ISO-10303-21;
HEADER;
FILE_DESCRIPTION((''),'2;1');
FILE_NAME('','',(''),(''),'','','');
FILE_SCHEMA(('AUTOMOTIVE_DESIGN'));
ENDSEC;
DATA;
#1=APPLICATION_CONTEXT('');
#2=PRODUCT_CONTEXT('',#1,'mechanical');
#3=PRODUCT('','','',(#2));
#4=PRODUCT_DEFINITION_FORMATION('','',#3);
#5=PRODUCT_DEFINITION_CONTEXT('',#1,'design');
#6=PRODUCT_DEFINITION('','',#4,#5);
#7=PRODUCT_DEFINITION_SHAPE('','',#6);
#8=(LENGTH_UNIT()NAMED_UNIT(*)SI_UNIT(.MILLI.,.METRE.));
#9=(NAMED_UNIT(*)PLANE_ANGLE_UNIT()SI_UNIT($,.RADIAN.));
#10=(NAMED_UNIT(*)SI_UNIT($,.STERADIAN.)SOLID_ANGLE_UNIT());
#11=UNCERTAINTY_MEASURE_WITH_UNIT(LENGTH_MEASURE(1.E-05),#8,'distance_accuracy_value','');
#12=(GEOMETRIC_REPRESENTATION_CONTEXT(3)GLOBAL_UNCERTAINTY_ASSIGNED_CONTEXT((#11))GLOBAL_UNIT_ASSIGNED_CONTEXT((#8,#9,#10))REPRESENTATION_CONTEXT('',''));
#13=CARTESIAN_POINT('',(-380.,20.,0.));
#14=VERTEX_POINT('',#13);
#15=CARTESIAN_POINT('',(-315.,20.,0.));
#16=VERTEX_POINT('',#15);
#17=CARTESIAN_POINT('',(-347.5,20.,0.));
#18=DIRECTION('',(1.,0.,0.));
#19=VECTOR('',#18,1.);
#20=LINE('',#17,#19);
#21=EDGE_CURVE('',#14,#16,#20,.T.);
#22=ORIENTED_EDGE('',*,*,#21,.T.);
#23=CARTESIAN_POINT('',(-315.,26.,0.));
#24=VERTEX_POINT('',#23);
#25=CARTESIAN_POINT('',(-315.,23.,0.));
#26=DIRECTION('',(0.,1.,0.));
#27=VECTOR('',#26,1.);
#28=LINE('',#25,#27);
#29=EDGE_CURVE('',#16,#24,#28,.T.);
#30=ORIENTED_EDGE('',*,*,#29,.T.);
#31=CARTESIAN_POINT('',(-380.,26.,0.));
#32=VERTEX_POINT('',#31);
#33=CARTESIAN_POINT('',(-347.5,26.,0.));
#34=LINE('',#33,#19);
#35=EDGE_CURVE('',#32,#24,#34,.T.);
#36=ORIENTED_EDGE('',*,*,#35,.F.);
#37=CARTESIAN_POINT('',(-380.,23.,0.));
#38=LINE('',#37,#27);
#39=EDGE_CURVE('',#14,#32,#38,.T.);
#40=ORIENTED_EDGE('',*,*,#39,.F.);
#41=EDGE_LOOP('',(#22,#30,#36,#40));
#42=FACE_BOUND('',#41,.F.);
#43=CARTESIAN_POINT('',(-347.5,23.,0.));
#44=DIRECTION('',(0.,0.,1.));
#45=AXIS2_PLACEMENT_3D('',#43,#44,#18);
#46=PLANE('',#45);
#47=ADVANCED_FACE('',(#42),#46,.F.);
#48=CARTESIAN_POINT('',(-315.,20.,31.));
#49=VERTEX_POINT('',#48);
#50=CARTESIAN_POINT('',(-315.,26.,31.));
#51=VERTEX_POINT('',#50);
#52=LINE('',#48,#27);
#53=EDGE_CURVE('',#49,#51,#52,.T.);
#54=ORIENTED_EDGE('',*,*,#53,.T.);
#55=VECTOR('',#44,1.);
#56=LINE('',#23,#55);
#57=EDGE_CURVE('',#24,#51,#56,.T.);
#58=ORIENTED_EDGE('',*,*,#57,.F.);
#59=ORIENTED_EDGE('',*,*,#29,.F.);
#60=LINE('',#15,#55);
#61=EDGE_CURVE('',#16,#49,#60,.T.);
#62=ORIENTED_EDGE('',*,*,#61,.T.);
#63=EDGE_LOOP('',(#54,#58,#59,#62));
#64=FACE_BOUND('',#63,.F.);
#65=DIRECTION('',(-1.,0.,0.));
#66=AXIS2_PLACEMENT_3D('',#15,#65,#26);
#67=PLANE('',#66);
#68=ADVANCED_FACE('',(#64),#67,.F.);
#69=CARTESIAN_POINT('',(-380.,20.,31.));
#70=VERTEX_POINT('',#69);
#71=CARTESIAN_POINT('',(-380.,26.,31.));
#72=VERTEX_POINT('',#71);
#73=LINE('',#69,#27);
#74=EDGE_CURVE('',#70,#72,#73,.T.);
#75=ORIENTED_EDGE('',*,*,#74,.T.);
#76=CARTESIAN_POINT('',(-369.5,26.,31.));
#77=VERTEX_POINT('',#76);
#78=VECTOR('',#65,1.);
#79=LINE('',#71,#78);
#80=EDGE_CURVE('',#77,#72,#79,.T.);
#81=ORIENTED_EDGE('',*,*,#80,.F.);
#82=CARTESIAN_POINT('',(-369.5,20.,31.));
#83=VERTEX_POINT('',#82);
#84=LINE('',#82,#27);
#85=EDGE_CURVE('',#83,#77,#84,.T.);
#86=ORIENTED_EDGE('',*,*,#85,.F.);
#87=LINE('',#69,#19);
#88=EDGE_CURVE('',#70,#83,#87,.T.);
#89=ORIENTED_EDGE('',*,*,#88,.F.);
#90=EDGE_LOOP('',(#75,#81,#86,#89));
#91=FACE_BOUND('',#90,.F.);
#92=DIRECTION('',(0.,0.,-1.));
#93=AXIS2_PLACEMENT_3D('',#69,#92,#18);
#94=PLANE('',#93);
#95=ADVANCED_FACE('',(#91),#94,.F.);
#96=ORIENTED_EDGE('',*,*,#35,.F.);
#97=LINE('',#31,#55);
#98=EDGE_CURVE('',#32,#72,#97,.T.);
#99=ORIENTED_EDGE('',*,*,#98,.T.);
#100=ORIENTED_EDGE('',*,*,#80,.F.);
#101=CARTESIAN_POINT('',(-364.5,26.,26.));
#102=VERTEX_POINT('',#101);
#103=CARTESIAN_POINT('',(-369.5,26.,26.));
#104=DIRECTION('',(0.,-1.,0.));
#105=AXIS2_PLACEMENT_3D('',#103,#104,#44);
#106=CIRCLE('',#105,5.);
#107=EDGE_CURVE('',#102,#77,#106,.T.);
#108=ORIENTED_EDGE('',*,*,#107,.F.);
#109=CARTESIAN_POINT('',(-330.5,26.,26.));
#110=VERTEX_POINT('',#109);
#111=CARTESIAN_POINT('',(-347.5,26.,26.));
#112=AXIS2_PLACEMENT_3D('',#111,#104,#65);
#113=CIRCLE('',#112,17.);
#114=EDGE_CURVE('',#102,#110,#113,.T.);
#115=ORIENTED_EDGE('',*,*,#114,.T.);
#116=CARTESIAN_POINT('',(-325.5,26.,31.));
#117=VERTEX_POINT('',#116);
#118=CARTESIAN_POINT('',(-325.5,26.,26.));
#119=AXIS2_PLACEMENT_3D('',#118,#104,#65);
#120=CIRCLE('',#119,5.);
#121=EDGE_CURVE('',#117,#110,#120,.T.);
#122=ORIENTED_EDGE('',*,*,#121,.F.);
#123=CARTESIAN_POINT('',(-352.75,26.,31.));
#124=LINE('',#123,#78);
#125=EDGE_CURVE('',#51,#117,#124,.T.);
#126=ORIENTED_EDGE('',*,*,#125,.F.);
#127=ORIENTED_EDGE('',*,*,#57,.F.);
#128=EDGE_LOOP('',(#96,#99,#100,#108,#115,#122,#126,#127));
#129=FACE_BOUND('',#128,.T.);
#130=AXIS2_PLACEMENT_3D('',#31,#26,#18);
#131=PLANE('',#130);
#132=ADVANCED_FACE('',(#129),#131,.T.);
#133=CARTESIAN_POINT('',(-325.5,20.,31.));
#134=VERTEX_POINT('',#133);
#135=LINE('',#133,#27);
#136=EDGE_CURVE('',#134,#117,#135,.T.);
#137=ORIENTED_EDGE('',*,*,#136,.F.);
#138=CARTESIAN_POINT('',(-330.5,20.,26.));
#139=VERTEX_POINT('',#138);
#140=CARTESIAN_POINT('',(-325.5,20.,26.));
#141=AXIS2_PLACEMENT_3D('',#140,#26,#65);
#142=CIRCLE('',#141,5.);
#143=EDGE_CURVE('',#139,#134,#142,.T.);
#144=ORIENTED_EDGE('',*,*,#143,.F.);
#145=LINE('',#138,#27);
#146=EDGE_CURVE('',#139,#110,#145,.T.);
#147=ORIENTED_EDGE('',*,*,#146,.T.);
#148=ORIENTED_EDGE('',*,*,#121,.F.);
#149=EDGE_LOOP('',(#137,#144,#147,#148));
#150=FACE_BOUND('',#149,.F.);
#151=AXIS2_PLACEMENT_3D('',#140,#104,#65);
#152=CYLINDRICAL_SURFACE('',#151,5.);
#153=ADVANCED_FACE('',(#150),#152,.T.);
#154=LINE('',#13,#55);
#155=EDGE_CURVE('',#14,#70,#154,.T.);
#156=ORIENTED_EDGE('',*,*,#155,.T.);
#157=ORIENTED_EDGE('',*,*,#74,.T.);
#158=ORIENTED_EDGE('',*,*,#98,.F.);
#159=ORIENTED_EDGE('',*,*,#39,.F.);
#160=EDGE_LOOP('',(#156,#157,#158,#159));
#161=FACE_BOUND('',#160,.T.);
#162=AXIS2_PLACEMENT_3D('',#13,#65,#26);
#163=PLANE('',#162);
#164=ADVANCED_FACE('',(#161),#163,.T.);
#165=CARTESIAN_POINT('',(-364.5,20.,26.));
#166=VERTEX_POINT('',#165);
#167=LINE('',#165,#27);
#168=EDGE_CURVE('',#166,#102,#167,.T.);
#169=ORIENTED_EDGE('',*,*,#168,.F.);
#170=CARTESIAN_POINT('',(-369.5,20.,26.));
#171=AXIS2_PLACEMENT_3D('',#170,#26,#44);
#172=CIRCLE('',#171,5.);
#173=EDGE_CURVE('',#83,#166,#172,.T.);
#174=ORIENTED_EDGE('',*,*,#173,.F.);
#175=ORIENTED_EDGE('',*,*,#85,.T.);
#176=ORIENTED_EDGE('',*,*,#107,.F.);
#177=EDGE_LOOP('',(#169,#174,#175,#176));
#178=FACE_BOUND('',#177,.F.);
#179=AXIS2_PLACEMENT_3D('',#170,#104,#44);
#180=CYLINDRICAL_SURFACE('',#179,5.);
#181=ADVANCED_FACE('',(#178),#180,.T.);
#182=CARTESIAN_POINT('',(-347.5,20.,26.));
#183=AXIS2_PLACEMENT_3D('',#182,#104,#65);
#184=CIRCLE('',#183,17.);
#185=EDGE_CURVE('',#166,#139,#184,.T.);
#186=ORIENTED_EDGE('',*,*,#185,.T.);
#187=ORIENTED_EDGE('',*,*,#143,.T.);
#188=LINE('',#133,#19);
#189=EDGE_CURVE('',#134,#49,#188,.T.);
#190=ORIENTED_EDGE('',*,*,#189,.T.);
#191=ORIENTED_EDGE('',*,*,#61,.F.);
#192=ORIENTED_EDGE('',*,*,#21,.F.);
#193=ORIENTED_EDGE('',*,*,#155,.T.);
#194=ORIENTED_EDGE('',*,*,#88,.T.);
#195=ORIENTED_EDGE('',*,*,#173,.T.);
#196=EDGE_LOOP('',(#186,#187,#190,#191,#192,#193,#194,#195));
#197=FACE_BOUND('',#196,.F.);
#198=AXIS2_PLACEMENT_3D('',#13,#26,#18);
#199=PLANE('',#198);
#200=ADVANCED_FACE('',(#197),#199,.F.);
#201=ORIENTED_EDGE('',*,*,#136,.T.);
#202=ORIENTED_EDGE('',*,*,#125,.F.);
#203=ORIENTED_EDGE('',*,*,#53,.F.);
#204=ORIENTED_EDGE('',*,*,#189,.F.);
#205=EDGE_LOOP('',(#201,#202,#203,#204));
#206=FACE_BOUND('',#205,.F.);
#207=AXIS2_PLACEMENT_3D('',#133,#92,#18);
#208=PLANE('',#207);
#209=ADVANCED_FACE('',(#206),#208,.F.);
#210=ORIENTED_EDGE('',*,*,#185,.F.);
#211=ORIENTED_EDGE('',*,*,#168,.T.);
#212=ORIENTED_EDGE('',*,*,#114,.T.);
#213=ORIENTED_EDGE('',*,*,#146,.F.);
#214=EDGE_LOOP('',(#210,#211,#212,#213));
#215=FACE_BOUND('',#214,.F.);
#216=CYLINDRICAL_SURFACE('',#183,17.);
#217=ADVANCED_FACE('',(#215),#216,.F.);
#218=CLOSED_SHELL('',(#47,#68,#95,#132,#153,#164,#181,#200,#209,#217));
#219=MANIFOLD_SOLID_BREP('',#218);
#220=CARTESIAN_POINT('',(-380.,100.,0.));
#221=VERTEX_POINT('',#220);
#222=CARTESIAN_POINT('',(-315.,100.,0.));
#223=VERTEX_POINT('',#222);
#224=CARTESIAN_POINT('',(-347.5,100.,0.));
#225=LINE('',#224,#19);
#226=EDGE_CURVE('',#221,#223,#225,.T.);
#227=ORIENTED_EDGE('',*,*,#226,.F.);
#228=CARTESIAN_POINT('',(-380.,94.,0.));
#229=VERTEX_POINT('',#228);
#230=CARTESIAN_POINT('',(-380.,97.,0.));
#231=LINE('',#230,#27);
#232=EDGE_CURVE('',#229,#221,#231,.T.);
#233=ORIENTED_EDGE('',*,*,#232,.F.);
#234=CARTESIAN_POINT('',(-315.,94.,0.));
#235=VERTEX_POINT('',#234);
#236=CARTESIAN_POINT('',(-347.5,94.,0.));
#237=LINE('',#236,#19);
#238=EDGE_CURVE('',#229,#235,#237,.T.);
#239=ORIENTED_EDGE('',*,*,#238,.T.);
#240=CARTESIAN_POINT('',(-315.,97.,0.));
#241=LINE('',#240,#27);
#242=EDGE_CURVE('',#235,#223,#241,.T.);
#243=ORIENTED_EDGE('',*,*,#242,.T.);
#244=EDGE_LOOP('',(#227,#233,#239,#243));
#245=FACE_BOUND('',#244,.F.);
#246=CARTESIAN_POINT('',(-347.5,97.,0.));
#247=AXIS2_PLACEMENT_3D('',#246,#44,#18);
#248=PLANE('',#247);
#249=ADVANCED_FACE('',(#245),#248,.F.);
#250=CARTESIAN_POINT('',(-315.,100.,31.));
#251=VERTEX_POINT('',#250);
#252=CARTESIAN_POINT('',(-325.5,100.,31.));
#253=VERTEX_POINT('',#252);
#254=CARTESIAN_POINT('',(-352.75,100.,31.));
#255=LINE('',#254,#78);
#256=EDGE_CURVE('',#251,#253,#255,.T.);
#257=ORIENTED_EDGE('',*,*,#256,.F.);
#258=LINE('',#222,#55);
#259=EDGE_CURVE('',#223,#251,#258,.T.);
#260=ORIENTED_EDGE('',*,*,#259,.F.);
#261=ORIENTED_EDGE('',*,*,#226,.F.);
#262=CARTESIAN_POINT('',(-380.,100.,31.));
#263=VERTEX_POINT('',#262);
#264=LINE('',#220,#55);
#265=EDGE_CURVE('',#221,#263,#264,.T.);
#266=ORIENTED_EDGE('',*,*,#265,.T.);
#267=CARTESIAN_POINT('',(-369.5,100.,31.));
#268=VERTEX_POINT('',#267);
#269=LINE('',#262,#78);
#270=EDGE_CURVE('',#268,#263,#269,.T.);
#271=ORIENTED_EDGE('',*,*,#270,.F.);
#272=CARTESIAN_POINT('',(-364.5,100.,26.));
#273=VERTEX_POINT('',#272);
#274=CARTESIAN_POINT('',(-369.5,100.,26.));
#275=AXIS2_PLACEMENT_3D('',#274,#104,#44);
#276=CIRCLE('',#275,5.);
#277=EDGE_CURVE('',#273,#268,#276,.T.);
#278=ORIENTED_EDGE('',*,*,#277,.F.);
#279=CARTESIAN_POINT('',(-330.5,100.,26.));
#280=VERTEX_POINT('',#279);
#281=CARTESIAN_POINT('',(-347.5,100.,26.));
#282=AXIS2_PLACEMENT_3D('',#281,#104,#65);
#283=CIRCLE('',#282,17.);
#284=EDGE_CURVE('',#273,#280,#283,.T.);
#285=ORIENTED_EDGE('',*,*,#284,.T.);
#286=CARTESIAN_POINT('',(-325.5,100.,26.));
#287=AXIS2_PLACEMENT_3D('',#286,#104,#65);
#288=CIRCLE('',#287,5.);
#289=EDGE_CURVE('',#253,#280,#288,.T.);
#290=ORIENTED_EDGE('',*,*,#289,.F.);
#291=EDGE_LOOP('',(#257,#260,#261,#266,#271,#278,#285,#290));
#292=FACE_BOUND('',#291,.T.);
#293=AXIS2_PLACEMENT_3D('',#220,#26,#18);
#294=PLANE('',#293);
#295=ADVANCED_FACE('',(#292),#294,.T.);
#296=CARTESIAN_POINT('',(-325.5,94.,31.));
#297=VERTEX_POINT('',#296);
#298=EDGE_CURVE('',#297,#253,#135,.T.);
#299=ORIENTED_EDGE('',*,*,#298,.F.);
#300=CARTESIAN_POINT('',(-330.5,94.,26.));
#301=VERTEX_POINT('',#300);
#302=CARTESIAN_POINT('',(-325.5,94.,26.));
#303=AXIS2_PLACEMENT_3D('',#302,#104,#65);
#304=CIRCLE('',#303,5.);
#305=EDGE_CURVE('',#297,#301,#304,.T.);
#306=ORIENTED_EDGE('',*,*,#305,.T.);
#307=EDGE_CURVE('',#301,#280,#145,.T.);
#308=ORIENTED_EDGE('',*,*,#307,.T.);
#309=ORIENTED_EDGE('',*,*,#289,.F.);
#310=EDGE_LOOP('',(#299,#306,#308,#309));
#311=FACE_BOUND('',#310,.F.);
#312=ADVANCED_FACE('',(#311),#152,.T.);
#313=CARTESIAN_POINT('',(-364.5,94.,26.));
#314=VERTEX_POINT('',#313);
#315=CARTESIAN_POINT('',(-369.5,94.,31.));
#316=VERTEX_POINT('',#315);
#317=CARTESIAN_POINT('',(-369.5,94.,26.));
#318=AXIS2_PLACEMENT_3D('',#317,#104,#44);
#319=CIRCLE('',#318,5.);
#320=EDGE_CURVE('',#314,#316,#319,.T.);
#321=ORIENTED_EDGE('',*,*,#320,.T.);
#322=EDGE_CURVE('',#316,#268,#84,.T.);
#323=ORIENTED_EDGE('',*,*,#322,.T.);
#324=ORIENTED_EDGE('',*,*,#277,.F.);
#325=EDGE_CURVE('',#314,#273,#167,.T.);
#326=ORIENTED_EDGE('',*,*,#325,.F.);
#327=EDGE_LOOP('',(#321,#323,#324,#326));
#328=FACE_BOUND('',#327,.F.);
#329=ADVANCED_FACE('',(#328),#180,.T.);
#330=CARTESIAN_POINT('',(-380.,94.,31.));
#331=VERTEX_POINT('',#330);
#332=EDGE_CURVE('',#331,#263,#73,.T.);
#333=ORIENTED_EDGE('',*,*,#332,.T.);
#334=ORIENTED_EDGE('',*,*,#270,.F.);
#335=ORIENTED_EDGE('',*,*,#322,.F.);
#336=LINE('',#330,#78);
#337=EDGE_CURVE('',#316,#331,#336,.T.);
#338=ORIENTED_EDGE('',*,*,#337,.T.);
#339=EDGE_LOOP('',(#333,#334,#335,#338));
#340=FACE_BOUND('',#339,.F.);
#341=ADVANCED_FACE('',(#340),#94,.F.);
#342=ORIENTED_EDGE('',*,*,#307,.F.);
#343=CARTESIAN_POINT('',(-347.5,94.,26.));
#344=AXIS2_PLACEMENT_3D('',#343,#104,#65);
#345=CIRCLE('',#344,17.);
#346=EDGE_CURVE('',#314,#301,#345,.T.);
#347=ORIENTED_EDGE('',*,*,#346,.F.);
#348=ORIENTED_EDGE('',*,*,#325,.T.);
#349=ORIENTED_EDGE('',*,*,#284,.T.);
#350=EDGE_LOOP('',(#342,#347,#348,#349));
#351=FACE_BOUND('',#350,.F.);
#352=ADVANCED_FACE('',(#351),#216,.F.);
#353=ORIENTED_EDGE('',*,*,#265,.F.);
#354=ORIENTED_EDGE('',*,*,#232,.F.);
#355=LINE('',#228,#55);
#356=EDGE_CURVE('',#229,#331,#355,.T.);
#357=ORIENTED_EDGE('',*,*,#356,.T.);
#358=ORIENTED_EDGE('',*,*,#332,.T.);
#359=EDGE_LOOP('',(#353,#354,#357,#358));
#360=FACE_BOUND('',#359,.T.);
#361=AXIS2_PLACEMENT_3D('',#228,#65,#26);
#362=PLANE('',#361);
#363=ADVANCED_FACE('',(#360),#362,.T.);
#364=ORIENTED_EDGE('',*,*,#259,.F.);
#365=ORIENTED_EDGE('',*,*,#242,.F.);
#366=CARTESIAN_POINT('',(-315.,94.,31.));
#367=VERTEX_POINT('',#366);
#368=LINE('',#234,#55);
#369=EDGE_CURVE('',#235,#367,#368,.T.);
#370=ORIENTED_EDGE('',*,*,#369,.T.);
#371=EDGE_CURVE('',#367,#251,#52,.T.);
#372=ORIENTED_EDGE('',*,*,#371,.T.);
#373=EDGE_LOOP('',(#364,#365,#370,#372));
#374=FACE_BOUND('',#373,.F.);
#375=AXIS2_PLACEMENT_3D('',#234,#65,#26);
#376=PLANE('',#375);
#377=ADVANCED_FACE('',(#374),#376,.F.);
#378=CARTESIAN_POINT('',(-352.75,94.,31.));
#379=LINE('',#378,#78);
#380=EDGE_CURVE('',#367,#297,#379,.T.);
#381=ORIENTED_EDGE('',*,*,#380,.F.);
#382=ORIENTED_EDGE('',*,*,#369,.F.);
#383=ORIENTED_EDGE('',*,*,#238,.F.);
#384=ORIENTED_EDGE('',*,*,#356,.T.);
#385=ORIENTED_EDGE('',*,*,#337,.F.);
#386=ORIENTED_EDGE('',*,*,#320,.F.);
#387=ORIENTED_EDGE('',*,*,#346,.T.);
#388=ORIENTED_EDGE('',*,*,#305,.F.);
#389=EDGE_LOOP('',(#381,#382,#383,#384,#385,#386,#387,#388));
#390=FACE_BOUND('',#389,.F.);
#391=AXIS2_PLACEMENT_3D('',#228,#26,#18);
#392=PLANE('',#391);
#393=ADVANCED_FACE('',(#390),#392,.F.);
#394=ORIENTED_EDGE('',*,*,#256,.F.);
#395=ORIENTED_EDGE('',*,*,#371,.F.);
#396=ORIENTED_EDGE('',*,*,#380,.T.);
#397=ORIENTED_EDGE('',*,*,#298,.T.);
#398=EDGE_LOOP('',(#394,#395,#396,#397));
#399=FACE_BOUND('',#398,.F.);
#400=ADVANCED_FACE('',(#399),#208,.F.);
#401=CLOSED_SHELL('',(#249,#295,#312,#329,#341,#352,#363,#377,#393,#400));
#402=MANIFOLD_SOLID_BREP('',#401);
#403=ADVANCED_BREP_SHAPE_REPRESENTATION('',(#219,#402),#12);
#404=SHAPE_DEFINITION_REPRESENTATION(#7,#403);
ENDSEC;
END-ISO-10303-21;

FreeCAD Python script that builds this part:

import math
import FreeCAD as App
import Part
import Sketcher
from FreeCAD import Vector


def add_polygon(sketch, points):
    """Adds a closed chain of lines whose ends are joined by coincident constraints."""
    first, n = sketch.GeometryCount, len(points)
    for a, b in zip(points, points[1:] + points[:1]):
        sketch.addGeometry(Part.LineSegment(App.Vector(*a, 0), App.Vector(*b, 0)), False)
    for i in range(n):
        sketch.addConstraint(Sketcher.Constraint("Coincident", first + i, 2, first + (i + 1) % n, 1))

doc = App.newDocument("Part")
body = doc.addObject("PartDesign::Body", "Body")

sketch1 = body.newObject("Sketcher::SketchObject", "Sketch")
sketch1.AttachmentSupport = (doc.getObject("XY_Plane"), [""])
sketch1.MapMode = "FlatFace"
add_polygon(sketch1, [(-380, 26), (-380, 20), (-315, 20), (-315, 26)])
sketch1.addConstraint([
    Sketcher.Constraint("Vertical", 0),
    Sketcher.Constraint("Horizontal", 1),
    Sketcher.Constraint("Vertical", 2),
    Sketcher.Constraint("Horizontal", 3),
    Sketcher.Constraint("DistanceX", 1, 1, 1, 2, 65.0),
    Sketcher.Constraint("DistanceY", 0, 2, 0, 1, 6.0),
    Sketcher.Constraint("DistanceX", 0, 2, -1, 1, 380.0),
    Sketcher.Constraint("DistanceY", -1, 1, 0, 2, 20.0),
])
pad1 = body.newObject("PartDesign::Pad", "Pad")
pad1.Profile = sketch1
pad1.Length = 46
body2 = doc.addObject("PartDesign::Body", "Body001")

sketch2 = body2.newObject("Sketcher::SketchObject", "Sketch001")
sketch2.AttachmentSupport = (doc.getObject("XY_Plane001"), [""])
sketch2.MapMode = "FlatFace"
add_polygon(sketch2, [(-380, 100), (-380, 94), (-315, 94), (-315, 100)])
sketch2.addConstraint([
    Sketcher.Constraint("Vertical", 0),
    Sketcher.Constraint("Horizontal", 1),
    Sketcher.Constraint("Vertical", 2),
    Sketcher.Constraint("Horizontal", 3),
    Sketcher.Constraint("DistanceX", 1, 1, 1, 2, 65.0),
    Sketcher.Constraint("DistanceY", 0, 2, 0, 1, 6.0),
    Sketcher.Constraint("DistanceX", 0, 2, -1, 1, 380.0),
    Sketcher.Constraint("DistanceY", -1, 1, 0, 2, 94.0),
])
pad2 = body2.newObject("PartDesign::Pad", "Pad001")
pad2.Profile = sketch2
pad2.Length = 46
body3 = doc.addObject("PartDesign::Body", "Body002")

sketch3 = body3.newObject("Sketcher::SketchObject", "Sketch002")
sketch3.AttachmentSupport = (doc.getObject("XZ_Plane002"), [""])
sketch3.MapMode = "FlatFace"
sketch3.AttachmentOffset = App.Placement(Vector(0, 0, -20), App.Rotation())
sketch3.addGeometry([
    Part.LineSegment(Vector(-315, 31, 0), Vector(-315, 46, 0)),
    Part.LineSegment(Vector(-315, 46, 0), Vector(-380, 46, 0)),
    Part.LineSegment(Vector(-380, 46, 0), Vector(-380, 31, 0)),
    Part.LineSegment(Vector(-380, 31, 0), Vector(-370, 31, 0)),
    Part.ArcOfCircle(Part.Circle(Vector(-370, 26, 0), Vector(0, 0, 1), 5), math.radians(0), math.radians(90)),
    Part.ArcOfCircle(Part.Circle(Vector(-348, 26, 0), Vector(0, 0, 1), 17), math.radians(180), math.radians(360)),
    Part.ArcOfCircle(Part.Circle(Vector(-326, 26, 0), Vector(0, 0, 1), 5), math.radians(90), math.radians(180)),
    Part.LineSegment(Vector(-326, 31, 0), Vector(-315, 31, 0)),
], False)
sketch3.addConstraint([
    Sketcher.Constraint("Coincident", 0, 2, 1, 1),
    Sketcher.Constraint("Coincident", 1, 2, 2, 1),
    Sketcher.Constraint("Coincident", 2, 2, 3, 1),
    Sketcher.Constraint("Tangent", 3, 2, 4, 2),
    Sketcher.Constraint("Tangent", 4, 1, 5, 1),
    Sketcher.Constraint("Tangent", 5, 2, 6, 2),
    Sketcher.Constraint("Tangent", 6, 1, 7, 1),
    Sketcher.Constraint("Coincident", 7, 2, 0, 1),
    Sketcher.Constraint("Vertical", 0),
    Sketcher.Constraint("Horizontal", 1),
    Sketcher.Constraint("Vertical", 2),
    Sketcher.Constraint("Horizontal", 3),
    Sketcher.Constraint("Horizontal", 7),
    Sketcher.Constraint("Equal", 4, 6),
    Sketcher.Constraint("Horizontal", 4, 3, 5, 3),
    Sketcher.Constraint("Horizontal", 5, 3, 6, 3),
    Sketcher.Constraint("Equal", 3, 7),
    Sketcher.Constraint("Radius", 4, 5.0),
    Sketcher.Constraint("Radius", 5, 17.0),
    Sketcher.Constraint("DistanceX", 1, 2, 1, 1, 65.0),
    Sketcher.Constraint("DistanceY", 0, 1, 0, 2, 15.0),
    Sketcher.Constraint("DistanceY", -1, 1, 4, 3, 26.0),
    Sketcher.Constraint("DistanceX", 0, 2, -1, 1, 315.0),
])
pad3 = body3.newObject("PartDesign::Pad", "Pad002")
pad3.Profile = sketch3
pad3.Length = 81
pad3.Reversed = True
doc.recompute()

body4 = doc.addObject("PartDesign::Body", "Body003")
body4.BaseFeature = body3
boolean = body.newObject("PartDesign::Boolean", "Boolean")
boolean.Type = "Cut"
boolean.addObjects([body4])
doc.recompute()

boolean2 = body2.newObject("PartDesign::Boolean", "Boolean001")
boolean2.Type = "Cut"
boolean2.addObjects([body3])

doc.recompute()
